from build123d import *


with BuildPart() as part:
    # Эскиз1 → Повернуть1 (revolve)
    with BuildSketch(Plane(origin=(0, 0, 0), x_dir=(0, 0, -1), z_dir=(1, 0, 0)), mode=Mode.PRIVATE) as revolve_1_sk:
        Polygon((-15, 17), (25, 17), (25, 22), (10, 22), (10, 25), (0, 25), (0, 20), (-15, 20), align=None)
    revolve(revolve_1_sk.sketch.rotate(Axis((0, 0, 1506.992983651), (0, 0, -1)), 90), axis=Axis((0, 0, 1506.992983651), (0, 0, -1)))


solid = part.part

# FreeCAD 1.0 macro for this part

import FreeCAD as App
import Part
import Sketcher
from FreeCAD import Vector

doc = App.newDocument("Part")
body = doc.addObject("PartDesign::Body", "Body")

sketch1 = body.newObject("Sketcher::SketchObject", "Sketch")
sketch1.AttachmentSupport = (doc.getObject("YZ_Plane"), [""])
sketch1.MapMode = "FlatFace"
sketch1.addGeometry(Part.LineSegment(Vector(17, 15, 0), Vector(17, -25, 0)), False)
sketch1.addGeometry(Part.LineSegment(Vector(17, -25, 0), Vector(22, -25, 0)), False)
sketch1.addGeometry(Part.LineSegment(Vector(22, -25, 0), Vector(22, -10, 0)), False)
sketch1.addGeometry(Part.LineSegment(Vector(22, -10, 0), Vector(25, -10, 0)), False)
sketch1.addGeometry(Part.LineSegment(Vector(25, -10, 0), Vector(25, 0, 0)), False)
sketch1.addGeometry(Part.LineSegment(Vector(25, 0, 0), Vector(20, 0, 0)), False)
sketch1.addGeometry(Part.LineSegment(Vector(20, 0, 0), Vector(20, 15, 0)), False)
sketch1.addGeometry(Part.LineSegment(Vector(20, 15, 0), Vector(17, 15, 0)), False)
sketch1.addConstraint(Sketcher.Constraint("Coincident", 0, 2, 1, 1))
sketch1.addConstraint(Sketcher.Constraint("Coincident", 1, 2, 2, 1))
sketch1.addConstraint(Sketcher.Constraint("Coincident", 2, 2, 3, 1))
sketch1.addConstraint(Sketcher.Constraint("Coincident", 3, 2, 4, 1))
sketch1.addConstraint(Sketcher.Constraint("Coincident", 4, 2, 5, 1))
sketch1.addConstraint(Sketcher.Constraint("Coincident", 5, 2, 6, 1))
sketch1.addConstraint(Sketcher.Constraint("Coincident", 6, 2, 7, 1))
sketch1.addConstraint(Sketcher.Constraint("Coincident", 7, 2, 0, 1))
sketch1.addConstraint(Sketcher.Constraint("Vertical", 0))
sketch1.addConstraint(Sketcher.Constraint("Horizontal", 1))
sketch1.addConstraint(Sketcher.Constraint("Vertical", 2))
sketch1.addConstraint(Sketcher.Constraint("Horizontal", 3))
sketch1.addConstraint(Sketcher.Constraint("Vertical", 4))
sketch1.addConstraint(Sketcher.Constraint("Horizontal", 5))
sketch1.addConstraint(Sketcher.Constraint("Vertical", 6))
sketch1.addConstraint(Sketcher.Constraint("Horizontal", 7))
sketch1.addConstraint(Sketcher.Constraint("PointOnObject", 4, 2, -1))
sketch1.addConstraint(Sketcher.Constraint("Equal", 1, 5))
sketch1.addConstraint(Sketcher.Constraint("Equal", 2, 6))
sketch1.addConstraint(Sketcher.Constraint("DistanceX", 1, 1, 1, 2, 5.0))
sketch1.addConstraint(Sketcher.Constraint("DistanceX", 3, 1, 3, 2, 3.0))
sketch1.addConstraint(Sketcher.Constraint("DistanceY", 0, 2, 0, 1, 40.0))
sketch1.addConstraint(Sketcher.Constraint("DistanceY", 2, 1, 2, 2, 15.0))
sketch1.addConstraint(Sketcher.Constraint("DistanceX", -1, 1, 0, 2, 17.0))
revolution = body.newObject("PartDesign::Revolution", "Revolution")
revolution.Profile = sketch1
revolution.ReferenceAxis = (sketch1, ["V_Axis"])
revolution.Angle = 360

doc.recompute()
